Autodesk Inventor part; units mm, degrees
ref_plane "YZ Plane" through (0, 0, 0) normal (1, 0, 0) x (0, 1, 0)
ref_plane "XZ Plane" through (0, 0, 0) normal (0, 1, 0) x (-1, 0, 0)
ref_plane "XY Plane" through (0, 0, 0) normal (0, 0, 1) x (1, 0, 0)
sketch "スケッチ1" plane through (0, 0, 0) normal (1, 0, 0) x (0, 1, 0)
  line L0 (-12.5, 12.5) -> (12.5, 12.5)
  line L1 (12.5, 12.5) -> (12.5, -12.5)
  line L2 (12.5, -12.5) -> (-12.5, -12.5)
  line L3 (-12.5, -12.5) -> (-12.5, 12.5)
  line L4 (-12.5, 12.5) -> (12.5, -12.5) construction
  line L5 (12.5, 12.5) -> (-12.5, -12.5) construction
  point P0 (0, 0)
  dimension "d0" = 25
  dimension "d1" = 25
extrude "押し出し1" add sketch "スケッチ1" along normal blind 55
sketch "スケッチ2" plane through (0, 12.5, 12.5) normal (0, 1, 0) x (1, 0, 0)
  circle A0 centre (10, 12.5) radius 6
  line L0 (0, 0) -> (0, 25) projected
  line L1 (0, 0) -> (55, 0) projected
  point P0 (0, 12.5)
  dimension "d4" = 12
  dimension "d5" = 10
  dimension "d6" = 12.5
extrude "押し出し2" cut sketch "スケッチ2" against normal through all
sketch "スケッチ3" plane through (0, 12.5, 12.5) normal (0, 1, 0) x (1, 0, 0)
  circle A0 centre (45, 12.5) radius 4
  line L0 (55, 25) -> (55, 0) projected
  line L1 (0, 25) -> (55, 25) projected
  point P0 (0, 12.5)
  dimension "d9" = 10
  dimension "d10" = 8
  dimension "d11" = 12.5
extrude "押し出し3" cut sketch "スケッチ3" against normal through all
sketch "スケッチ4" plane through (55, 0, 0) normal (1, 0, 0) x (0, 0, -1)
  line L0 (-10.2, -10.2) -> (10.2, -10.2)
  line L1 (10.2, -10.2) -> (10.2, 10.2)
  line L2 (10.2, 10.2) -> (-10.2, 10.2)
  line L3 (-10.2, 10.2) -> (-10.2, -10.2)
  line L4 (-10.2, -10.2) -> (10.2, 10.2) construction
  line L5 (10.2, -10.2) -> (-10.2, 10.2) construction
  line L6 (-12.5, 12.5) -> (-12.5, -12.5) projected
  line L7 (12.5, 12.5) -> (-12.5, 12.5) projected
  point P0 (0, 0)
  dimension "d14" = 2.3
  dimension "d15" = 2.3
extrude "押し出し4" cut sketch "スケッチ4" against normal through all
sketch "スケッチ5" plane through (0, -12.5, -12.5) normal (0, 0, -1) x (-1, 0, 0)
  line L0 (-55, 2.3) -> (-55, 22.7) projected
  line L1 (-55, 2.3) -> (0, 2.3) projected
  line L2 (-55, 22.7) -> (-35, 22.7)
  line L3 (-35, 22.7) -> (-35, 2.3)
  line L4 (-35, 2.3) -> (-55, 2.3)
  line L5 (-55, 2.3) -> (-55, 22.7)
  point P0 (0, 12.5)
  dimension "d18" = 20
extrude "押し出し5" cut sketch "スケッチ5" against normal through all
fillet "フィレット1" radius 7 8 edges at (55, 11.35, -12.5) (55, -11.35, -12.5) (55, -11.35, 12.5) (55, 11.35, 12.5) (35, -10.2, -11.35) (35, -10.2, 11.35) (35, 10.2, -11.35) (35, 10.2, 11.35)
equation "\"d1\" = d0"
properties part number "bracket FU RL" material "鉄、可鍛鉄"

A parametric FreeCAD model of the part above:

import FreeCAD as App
import Part
import Sketcher

V = App.Vector


def edges_at(feature, points):
    """Names of the edges that pass closest to the given points."""
    edges = feature.Shape.Edges
    near = lambda p: min(range(len(edges)), key=lambda i: edges[i].distToShape(Part.Vertex(*p))[0])
    return sorted({f"Edge{near(p) + 1}" for p in points})

doc = App.newDocument("Part")
params = doc.addObject("Spreadsheet::Sheet", "Params")
for row, (alias, value) in enumerate([
    ("sketch1_width", "25 mm"),
    ("pad1_length", "55 mm"),
    ("sketch2_diameter", "12 mm"),
    ("sketch3_diameter", "8 mm"),
    ("sketch4_width", "20.4 mm"),
    ("sketch5_width", "20 mm"),
    ("sketch5_height", "20.4 mm"),
    ("fillet_radius", "7 mm"),
], start=1):
    params.set(f"A{row}", alias)
    params.set(f"B{row}", "=" + value)
    params.setAlias(f"B{row}", alias)

body = doc.addObject("PartDesign::Body", "Body")

# Sketch on YZ plane
sketch1 = body.newObject("Sketcher::SketchObject", "Sketch")
sketch1.AttachmentSupport = (doc.getObject("YZ_Plane"), [""])
sketch1.MapMode = "FlatFace"
sketch1.addGeometry(Part.LineSegment(V(12.5, 12.5, 0), V(-12.5, 12.5, 0)), False)
sketch1.addGeometry(Part.LineSegment(V(-12.5, 12.5, 0), V(-12.5, -12.5, 0)), False)
sketch1.addGeometry(Part.LineSegment(V(-12.5, -12.5, 0), V(12.5, -12.5, 0)), False)
sketch1.addGeometry(Part.LineSegment(V(12.5, -12.5, 0), V(12.5, 12.5, 0)), False)
sketch1.addConstraint(Sketcher.Constraint("Coincident", 0, 2, 1, 1))
sketch1.addConstraint(Sketcher.Constraint("Coincident", 1, 2, 2, 1))
sketch1.addConstraint(Sketcher.Constraint("Coincident", 2, 2, 3, 1))
sketch1.addConstraint(Sketcher.Constraint("Coincident", 3, 2, 0, 1))
sketch1.addConstraint(Sketcher.Constraint("Horizontal", 0))
sketch1.addConstraint(Sketcher.Constraint("Vertical", 1))
sketch1.addConstraint(Sketcher.Constraint("Horizontal", 2))
sketch1.addConstraint(Sketcher.Constraint("Vertical", 3))
sketch1.addConstraint(Sketcher.Constraint("Symmetric", 0, 2, 2, 2, -1, 1))
sketch1.addConstraint(Sketcher.Constraint("Equal", 2, 1))
sketch1.addConstraint(Sketcher.Constraint("DistanceX", 0, 2, 0, 1, 25.0))
sketch1.setExpression("Constraints[10]", "Params.sketch1_width")
pad1 = body.newObject("PartDesign::Pad", "Pad")
pad1.Profile = sketch1
pad1.setExpression("Length", "Params.pad1_length")

# Sketch on XZ plane
sketch2 = body.newObject("Sketcher::SketchObject", "Sketch001")
sketch2.AttachmentSupport = (doc.getObject("XZ_Plane"), [""])
sketch2.MapMode = "FlatFace"
sketch2.AttachmentOffset = App.Placement(V(0, 0, -12.5), App.Rotation())
sketch2.addGeometry(Part.Circle(V(10, 0, 0), V(0, 0, 1), 6), False)
sketch2.addConstraint(Sketcher.Constraint("PointOnObject", 0, 3, -1))
sketch2.addConstraint(Sketcher.Constraint("Diameter", 0, 12.0))
sketch2.addConstraint(Sketcher.Constraint("DistanceX", -1, 1, 0, 3, 10.0))
sketch2.setExpression("Constraints[1]", "Params.sketch2_diameter")
pocket1 = body.newObject("PartDesign::Pocket", "Pocket")
pocket1.Profile = sketch2
pocket1.Type = "ThroughAll"
pocket1.Reversed = True

# Sketch on XZ plane
sketch3 = body.newObject("Sketcher::SketchObject", "Sketch002")
sketch3.AttachmentSupport = (doc.getObject("XZ_Plane"), [""])
sketch3.MapMode = "FlatFace"
sketch3.AttachmentOffset = App.Placement(V(0, 0, -12.5), App.Rotation())
sketch3.addGeometry(Part.Circle(V(45, 0, 0), V(0, 0, 1), 4), False)
sketch3.addConstraint(Sketcher.Constraint("PointOnObject", 0, 3, -1))
sketch3.addConstraint(Sketcher.Constraint("Diameter", 0, 8.0))
sketch3.addConstraint(Sketcher.Constraint("DistanceX", -1, 1, 0, 3, 45.0))
sketch3.setExpression("Constraints[1]", "Params.sketch3_diameter")
pocket2 = body.newObject("PartDesign::Pocket", "Pocket001")
pocket2.Profile = sketch3
pocket2.Type = "ThroughAll"
pocket2.Reversed = True

# Sketch on YZ plane
sketch4 = body.newObject("Sketcher::SketchObject", "Sketch003")
sketch4.AttachmentSupport = (doc.getObject("YZ_Plane"), [""])
sketch4.MapMode = "FlatFace"
sketch4.AttachmentOffset = App.Placement(V(0, 0, 55), App.Rotation())
sketch4.addGeometry(Part.LineSegment(V(10.2, 10.2, 0), V(-10.2, 10.2, 0)), False)
sketch4.addGeometry(Part.LineSegment(V(-10.2, 10.2, 0), V(-10.2, -10.2, 0)), False)
sketch4.addGeometry(Part.LineSegment(V(-10.2, -10.2, 0), V(10.2, -10.2, 0)), False)
sketch4.addGeometry(Part.LineSegment(V(10.2, -10.2, 0), V(10.2, 10.2, 0)), False)
sketch4.addConstraint(Sketcher.Constraint("Coincident", 0, 2, 1, 1))
sketch4.addConstraint(Sketcher.Constraint("Coincident", 1, 2, 2, 1))
sketch4.addConstraint(Sketcher.Constraint("Coincident", 2, 2, 3, 1))
sketch4.addConstraint(Sketcher.Constraint("Coincident", 3, 2, 0, 1))
sketch4.addConstraint(Sketcher.Constraint("Horizontal", 0))
sketch4.addConstraint(Sketcher.Constraint("Vertical", 1))
sketch4.addConstraint(Sketcher.Constraint("Horizontal", 2))
sketch4.addConstraint(Sketcher.Constraint("Vertical", 3))
sketch4.addConstraint(Sketcher.Constraint("Symmetric", 0, 2, 2, 2, -1, 1))
sketch4.addConstraint(Sketcher.Constraint("Equal", 2, 1))
sketch4.addConstraint(Sketcher.Constraint("DistanceX", 0, 2, 0, 1, 20.4))
sketch4.setExpression("Constraints[10]", "Params.sketch4_width")
pocket3 = body.newObject("PartDesign::Pocket", "Pocket002")
pocket3.Profile = sketch4
pocket3.Type = "ThroughAll"

# Sketch on XY plane
sketch5 = body.newObject("Sketcher::SketchObject", "Sketch004")
sketch5.AttachmentSupport = (doc.getObject("XY_Plane"), [""])
sketch5.MapMode = "FlatFace"
sketch5.AttachmentOffset = App.Placement(V(0, 0, -12.5), App.Rotation())
sketch5.addGeometry(Part.LineSegment(V(55, 10.2, 0), V(55, -10.2, 0)), False)
sketch5.addGeometry(Part.LineSegment(V(55, -10.2, 0), V(35, -10.2, 0)), False)
sketch5.addGeometry(Part.LineSegment(V(35, -10.2, 0), V(35, 10.2, 0)), False)
sketch5.addGeometry(Part.LineSegment(V(35, 10.2, 0), V(55, 10.2, 0)), False)
sketch5.addConstraint(Sketcher.Constraint("Coincident", 0, 2, 1, 1))
sketch5.addConstraint(Sketcher.Constraint("Coincident", 1, 2, 2, 1))
sketch5.addConstraint(Sketcher.Constraint("Coincident", 2, 2, 3, 1))
sketch5.addConstraint(Sketcher.Constraint("Coincident", 3, 2, 0, 1))
sketch5.addConstraint(Sketcher.Constraint("Vertical", 0))
sketch5.addConstraint(Sketcher.Constraint("Horizontal", 1))
sketch5.addConstraint(Sketcher.Constraint("Vertical", 2))
sketch5.addConstraint(Sketcher.Constraint("Horizontal", 3))
sketch5.addConstraint(Sketcher.Constraint("DistanceX", 1, 2, 1, 1, 20.0))
sketch5.addConstraint(Sketcher.Constraint("DistanceY", 0, 2, 0, 1, 20.4))
sketch5.addConstraint(Sketcher.Constraint("DistanceX", -1, 1, 0, 2, 55.0))
sketch5.addConstraint(Sketcher.Constraint("DistanceY", 0, 2, -1, 1, 10.2))
sketch5.setExpression("Constraints[8]", "Params.sketch5_width")
sketch5.setExpression("Constraints[9]", "Params.sketch5_height")
pocket4 = body.newObject("PartDesign::Pocket", "Pocket003")
pocket4.Profile = sketch5
pocket4.Type = "ThroughAll"
pocket4.Reversed = True
doc.recompute()

fillet = body.newObject("PartDesign::Fillet", "Fillet")
fillet.Base = (pocket4, edges_at(pocket4, [
    (55, 11.35, -12.5),
    (55, -11.35, -12.5),
    (55, -11.35, 12.5),
    (55, 11.35, 12.5),
    (35, -10.2, -11.35),
    (35, -10.2, 11.35),
    (35, 10.2, -11.35),
    (35, 10.2, 11.35),
]))
fillet.setExpression("Radius", "Params.fillet_radius")

doc.recompute()
